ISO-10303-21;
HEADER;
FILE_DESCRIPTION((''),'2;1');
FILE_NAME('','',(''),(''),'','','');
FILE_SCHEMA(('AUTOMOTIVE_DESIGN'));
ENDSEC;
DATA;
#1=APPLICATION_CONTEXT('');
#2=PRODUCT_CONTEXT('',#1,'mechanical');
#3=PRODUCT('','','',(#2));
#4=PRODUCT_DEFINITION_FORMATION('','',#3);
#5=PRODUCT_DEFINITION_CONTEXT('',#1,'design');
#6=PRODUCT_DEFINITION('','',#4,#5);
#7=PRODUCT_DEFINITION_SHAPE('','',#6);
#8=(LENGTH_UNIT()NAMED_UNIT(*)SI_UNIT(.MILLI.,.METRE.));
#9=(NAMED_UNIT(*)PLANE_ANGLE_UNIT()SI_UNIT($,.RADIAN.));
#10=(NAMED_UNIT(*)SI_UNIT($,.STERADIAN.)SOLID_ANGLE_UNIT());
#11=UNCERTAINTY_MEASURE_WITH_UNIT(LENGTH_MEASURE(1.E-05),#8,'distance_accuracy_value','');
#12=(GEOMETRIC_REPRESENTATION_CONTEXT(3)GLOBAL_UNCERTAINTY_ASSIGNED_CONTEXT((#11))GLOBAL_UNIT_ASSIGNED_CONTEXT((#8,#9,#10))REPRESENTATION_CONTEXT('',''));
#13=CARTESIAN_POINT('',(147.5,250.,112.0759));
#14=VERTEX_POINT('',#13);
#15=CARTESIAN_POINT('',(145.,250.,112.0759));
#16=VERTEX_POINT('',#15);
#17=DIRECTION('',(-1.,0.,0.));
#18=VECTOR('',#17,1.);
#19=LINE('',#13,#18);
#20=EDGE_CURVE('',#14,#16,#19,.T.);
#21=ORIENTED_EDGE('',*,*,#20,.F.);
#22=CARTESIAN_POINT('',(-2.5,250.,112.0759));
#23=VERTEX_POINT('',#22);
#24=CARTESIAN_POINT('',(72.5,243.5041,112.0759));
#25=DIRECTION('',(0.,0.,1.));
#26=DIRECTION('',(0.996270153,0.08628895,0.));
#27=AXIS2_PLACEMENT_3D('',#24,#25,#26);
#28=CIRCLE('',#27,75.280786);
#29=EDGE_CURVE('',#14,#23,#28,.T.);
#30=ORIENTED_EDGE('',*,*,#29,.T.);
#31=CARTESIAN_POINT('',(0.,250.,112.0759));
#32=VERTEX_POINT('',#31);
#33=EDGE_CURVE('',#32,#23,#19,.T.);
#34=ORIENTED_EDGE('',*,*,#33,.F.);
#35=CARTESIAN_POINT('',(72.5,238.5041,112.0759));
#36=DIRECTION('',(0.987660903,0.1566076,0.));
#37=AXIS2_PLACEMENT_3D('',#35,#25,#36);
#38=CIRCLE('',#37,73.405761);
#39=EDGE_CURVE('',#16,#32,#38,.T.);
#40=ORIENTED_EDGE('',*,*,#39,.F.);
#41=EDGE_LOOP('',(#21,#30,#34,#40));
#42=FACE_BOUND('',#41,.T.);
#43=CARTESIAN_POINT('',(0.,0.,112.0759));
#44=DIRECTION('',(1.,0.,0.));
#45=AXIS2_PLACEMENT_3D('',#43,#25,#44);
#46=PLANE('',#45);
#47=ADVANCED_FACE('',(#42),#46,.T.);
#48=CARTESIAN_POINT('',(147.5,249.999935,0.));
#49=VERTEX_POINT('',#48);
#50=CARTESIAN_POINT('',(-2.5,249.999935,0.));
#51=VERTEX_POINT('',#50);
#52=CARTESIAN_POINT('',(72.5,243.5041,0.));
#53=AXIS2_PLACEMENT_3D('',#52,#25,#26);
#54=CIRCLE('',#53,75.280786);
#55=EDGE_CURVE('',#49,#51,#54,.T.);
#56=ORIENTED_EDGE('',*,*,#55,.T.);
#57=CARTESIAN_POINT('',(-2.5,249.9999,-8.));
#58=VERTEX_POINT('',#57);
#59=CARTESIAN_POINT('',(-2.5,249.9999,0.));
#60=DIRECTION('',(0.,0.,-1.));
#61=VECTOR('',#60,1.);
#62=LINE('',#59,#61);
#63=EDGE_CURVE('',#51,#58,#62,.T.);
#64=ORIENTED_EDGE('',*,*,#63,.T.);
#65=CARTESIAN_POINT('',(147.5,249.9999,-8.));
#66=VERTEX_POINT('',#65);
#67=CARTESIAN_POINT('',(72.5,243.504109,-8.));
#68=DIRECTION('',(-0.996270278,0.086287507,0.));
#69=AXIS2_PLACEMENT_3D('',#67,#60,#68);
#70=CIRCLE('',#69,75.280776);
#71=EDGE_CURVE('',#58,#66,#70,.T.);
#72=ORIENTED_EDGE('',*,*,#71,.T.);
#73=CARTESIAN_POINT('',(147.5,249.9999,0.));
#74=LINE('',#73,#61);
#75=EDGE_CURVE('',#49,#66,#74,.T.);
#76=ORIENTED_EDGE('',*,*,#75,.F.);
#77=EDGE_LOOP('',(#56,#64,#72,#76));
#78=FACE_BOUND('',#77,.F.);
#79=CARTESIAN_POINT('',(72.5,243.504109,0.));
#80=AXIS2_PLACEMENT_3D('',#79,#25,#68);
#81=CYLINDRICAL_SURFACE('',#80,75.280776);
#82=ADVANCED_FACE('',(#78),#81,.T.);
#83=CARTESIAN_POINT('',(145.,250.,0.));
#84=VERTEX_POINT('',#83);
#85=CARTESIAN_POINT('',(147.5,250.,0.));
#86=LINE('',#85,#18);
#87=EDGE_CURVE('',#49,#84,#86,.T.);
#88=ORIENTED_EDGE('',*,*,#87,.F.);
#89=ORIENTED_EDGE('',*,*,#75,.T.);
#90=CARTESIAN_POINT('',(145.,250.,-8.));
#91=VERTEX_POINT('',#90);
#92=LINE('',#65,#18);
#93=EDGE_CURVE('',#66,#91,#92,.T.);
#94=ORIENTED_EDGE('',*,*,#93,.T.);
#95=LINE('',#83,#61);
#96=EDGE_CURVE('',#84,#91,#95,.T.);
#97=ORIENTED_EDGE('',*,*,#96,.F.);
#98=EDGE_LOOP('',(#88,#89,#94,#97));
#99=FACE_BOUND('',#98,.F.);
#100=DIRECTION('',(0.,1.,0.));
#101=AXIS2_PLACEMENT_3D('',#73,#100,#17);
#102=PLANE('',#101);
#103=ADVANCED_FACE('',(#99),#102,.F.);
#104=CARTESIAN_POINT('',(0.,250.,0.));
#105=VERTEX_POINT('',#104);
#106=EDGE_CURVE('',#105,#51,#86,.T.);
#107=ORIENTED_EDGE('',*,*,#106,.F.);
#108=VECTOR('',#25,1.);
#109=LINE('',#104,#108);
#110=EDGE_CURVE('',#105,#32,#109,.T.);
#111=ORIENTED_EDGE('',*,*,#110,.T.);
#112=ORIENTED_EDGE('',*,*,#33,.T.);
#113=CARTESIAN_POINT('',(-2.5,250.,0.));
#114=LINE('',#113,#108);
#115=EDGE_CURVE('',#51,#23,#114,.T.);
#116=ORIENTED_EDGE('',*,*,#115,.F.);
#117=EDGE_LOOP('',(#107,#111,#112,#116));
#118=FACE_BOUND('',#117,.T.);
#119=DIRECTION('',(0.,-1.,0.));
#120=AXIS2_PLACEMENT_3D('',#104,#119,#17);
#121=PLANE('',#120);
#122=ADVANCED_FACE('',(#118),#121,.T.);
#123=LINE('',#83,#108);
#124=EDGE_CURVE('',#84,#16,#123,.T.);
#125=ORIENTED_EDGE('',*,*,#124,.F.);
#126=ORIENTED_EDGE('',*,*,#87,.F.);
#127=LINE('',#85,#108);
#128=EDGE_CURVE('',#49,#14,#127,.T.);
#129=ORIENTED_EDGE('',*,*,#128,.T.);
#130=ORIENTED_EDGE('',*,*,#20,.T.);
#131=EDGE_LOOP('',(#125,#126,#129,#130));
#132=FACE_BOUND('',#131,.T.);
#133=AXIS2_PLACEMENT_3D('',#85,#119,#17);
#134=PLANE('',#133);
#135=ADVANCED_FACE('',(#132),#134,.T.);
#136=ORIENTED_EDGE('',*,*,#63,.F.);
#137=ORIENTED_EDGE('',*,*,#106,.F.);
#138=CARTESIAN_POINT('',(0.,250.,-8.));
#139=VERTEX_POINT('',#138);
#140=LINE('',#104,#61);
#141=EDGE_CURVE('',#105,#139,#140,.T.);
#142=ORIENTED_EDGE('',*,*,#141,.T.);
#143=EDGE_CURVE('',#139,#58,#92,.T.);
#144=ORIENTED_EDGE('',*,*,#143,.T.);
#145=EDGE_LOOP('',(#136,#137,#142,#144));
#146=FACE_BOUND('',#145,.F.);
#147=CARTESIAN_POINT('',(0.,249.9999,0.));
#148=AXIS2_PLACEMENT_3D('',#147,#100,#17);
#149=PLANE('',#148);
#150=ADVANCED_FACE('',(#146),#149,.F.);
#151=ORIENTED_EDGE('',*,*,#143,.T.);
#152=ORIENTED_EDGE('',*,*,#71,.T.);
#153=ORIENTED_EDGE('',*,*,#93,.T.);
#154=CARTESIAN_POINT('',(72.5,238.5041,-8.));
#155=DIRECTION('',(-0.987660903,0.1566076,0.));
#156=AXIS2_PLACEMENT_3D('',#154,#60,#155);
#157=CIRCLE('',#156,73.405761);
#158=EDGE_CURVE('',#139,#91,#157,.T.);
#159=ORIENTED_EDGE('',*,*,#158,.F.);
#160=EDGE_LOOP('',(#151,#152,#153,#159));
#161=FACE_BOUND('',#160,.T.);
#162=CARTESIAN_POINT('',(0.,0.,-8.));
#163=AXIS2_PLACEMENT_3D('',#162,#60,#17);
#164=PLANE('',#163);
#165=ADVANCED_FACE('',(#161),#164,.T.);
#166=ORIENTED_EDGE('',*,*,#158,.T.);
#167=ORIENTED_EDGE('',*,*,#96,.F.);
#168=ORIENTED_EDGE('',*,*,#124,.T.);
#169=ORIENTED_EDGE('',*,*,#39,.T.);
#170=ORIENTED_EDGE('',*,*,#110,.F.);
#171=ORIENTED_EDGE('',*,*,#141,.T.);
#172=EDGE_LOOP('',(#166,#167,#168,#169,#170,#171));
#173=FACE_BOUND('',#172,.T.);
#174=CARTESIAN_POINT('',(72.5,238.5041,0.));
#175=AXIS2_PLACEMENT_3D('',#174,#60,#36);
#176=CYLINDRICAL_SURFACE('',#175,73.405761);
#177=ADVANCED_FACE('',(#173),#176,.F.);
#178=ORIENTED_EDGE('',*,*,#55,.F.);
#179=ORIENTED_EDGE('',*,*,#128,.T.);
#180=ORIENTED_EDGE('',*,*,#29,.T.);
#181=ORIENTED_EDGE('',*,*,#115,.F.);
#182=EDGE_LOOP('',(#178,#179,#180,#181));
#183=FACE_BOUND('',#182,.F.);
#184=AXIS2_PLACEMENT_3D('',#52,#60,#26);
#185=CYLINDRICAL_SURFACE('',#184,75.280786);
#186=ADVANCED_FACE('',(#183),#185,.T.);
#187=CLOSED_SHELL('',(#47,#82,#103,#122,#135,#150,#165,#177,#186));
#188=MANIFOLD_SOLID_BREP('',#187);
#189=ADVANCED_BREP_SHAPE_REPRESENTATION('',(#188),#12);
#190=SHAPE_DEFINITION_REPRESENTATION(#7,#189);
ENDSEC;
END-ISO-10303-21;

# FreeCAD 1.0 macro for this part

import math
import FreeCAD as App
import Part
import Sketcher
Q = App.Units.Quantity

doc = App.newDocument("Part")
body = doc.addObject("PartDesign::Body", "Body")

# Sketch on XY plane
sketch1 = body.newObject("Sketcher::SketchObject", "Sketch")
sketch1.AttachmentSupport = (doc.getObject("XY_Plane"), [""])
sketch1.MapMode = "FlatFace"
sketch1.addGeometry(Part.LineSegment(App.Vector(-2.5, 250, 0), App.Vector(0, 250, 0)), False)
sketch1.addGeometry(Part.ArcOfCircle(Part.Circle(App.Vector(72.5, 238.5041, 0), App.Vector(0, 0, 1), 73.405761), math.radians(9.010044), math.radians(170.989956)), False)
sketch1.addGeometry(Part.LineSegment(App.Vector(145, 250, 0), App.Vector(147.5, 250, 0)), False)
sketch1.addGeometry(Part.ArcOfCircle(Part.Circle(App.Vector(72.5, 243.5041, 0), App.Vector(0, 0, 1), 75.280786), math.radians(4.950149), math.radians(175.049851)), False)
sketch1.addConstraint(Sketcher.Constraint("Coincident", 0, 2, 1, 2))
sketch1.addConstraint(Sketcher.Constraint("Coincident", 1, 1, 2, 1))
sketch1.addConstraint(Sketcher.Constraint("Coincident", 2, 2, 3, 1))
sketch1.addConstraint(Sketcher.Constraint("Coincident", 3, 2, 0, 1))
sketch1.addConstraint(Sketcher.Constraint("Horizontal", 0))
sketch1.addConstraint(Sketcher.Constraint("Horizontal", 2))
sketch1.addConstraint(Sketcher.Constraint("PointOnObject", 0, 2, -2))
sketch1.addConstraint(Sketcher.Constraint("Horizontal", 0, 2, 1, 1))
sketch1.addConstraint(Sketcher.Constraint("Vertical", 1, 3, 3, 3))
sketch1.addConstraint(Sketcher.Constraint("DistanceY", 1, 3, 3, 3, Q("5 mm")))
sketch1.addConstraint(Sketcher.Constraint("DistanceX", 0, 1, 0, 2, Q("2.5 mm")))
sketch1.addConstraint(Sketcher.Constraint("DistanceY", -1, 1, 0, 2, Q("250 mm")))
sketch1.addConstraint(Sketcher.Constraint("DistanceX", -1, 1, 1, 1, Q("145 mm")))
sketch1.addConstraint(Sketcher.Constraint("Radius", 1, Q("73.4058 mm")))
pad1 = body.newObject("PartDesign::Pad", "Pad")
pad1.Profile = sketch1
pad1.Length = 112.0759

# Sketch on XY plane
sketch2 = body.newObject("Sketcher::SketchObject", "Sketch001")
sketch2.AttachmentSupport = (doc.getObject("XY_Plane"), [""])
sketch2.MapMode = "FlatFace"
sketch2.addGeometry(Part.ArcOfCircle(Part.Circle(App.Vector(72.5, 243.5041, 0), App.Vector(0, 0, 1), 75.280786), math.radians(4.950073), math.radians(175.049927)), False)
sketch2.addGeometry(Part.LineSegment(App.Vector(147.5, 249.9999, 0), App.Vector(145, 249.9999, 0)), False)
sketch2.addGeometry(Part.ArcOfCircle(Part.Circle(App.Vector(72.5, 238.5041, 0), App.Vector(0, 0, 1), 73.405761), math.radians(9.010044), math.radians(170.989956)), False)
sketch2.addGeometry(Part.LineSegment(App.Vector(0, 249.9999, 0), App.Vector(-2.5, 249.9999, 0)), False)
sketch2.addConstraint(Sketcher.Constraint("Coincident", 0, 1, 1, 1))
sketch2.addConstraint(Sketcher.Constraint("Coincident", 1, 2, 2, 1))
sketch2.addConstraint(Sketcher.Constraint("Coincident", 2, 2, 3, 1))
sketch2.addConstraint(Sketcher.Constraint("Coincident", 3, 2, 0, 2))
sketch2.addConstraint(Sketcher.Constraint("Horizontal", 1))
sketch2.addConstraint(Sketcher.Constraint("Horizontal", 3))
sketch2.addConstraint(Sketcher.Constraint("PointOnObject", 2, 2, -2))
sketch2.addConstraint(Sketcher.Constraint("Horizontal", 1, 2, 2, 2))
sketch2.addConstraint(Sketcher.Constraint("Vertical", 0, 3, 2, 3))
sketch2.addConstraint(Sketcher.Constraint("DistanceX", 1, 2, 1, 1, Q("2.5 mm")))
sketch2.addConstraint(Sketcher.Constraint("DistanceY", -1, 1, 0, 1, Q("250 mm")))
sketch2.addConstraint(Sketcher.Constraint("DistanceX", -1, 1, 1, 2, Q("145 mm")))
sketch2.addConstraint(Sketcher.Constraint("DistanceY", 2, 3, 0, 3, Q("5 mm")))
sketch2.addConstraint(Sketcher.Constraint("Radius", 0, Q("75.2808 mm")))
pad2 = body.newObject("PartDesign::Pad", "Pad001")
pad2.Profile = sketch2
pad2.Length = 8
pad2.Reversed = True

doc.recompute()
